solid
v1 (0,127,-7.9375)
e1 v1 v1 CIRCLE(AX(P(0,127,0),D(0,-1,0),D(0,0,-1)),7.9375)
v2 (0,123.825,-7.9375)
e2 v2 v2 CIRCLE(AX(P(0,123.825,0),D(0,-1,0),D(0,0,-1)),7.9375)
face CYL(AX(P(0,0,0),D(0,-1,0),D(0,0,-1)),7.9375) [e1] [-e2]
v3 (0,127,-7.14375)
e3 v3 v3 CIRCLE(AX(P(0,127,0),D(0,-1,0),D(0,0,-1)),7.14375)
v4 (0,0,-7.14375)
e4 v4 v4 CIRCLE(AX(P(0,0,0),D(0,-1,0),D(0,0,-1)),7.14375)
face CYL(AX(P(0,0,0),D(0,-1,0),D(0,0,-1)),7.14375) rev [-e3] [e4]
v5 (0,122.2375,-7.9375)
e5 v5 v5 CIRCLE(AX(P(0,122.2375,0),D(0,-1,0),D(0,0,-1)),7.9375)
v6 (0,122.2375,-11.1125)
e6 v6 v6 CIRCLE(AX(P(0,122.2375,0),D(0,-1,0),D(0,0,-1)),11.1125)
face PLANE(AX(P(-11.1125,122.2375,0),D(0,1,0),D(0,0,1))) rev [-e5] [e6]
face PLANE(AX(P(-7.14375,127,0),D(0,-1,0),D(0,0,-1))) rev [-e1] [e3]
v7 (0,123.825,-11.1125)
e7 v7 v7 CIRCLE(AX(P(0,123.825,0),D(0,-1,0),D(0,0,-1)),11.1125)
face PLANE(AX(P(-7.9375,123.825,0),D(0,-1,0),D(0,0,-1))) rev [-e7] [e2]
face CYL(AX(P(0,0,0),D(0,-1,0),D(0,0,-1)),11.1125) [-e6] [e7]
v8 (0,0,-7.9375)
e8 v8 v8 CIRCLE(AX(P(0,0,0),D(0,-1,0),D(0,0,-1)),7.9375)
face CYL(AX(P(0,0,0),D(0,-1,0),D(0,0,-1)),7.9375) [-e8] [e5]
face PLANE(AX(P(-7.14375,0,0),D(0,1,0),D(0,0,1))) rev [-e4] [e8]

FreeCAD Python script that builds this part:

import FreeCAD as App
import Part
import Sketcher
Q = App.Units.Quantity


def add_polygon(sketch, points):
    """Adds a closed chain of lines whose ends are joined by coincident constraints."""
    first, n = sketch.GeometryCount, len(points)
    for a, b in zip(points, points[1:] + points[:1]):
        sketch.addGeometry(Part.LineSegment(App.Vector(*a, 0), App.Vector(*b, 0)), False)
    for i in range(n):
        sketch.addConstraint(Sketcher.Constraint("Coincident", first + i, 2, first + (i + 1) % n, 1))

doc = App.newDocument("Part")
body = doc.addObject("PartDesign::Body", "Body")

sketch1 = doc.addObject("Sketcher::SketchObject", "Sketch")
body.addObject(sketch1)
sketch1.AttachmentSupport = (doc.XY_Plane, [""])
sketch1.MapMode = "FlatFace"
add_polygon(sketch1, [(-7.1, 0), (-7.1, 127), (-7.9, 127), (-7.9, 123.8), (-11.1, 123.8), (-11.1, 122.2), (-7.9, 122.2), (-7.9, 0)])
sketch1.addConstraint([
    Sketcher.Constraint("Vertical", 0),
    Sketcher.Constraint("Horizontal", 1),
    Sketcher.Constraint("Vertical", 2),
    Sketcher.Constraint("Horizontal", 3),
    Sketcher.Constraint("Vertical", 4),
    Sketcher.Constraint("Horizontal", 5),
    Sketcher.Constraint("Vertical", 6),
    Sketcher.Constraint("Horizontal", 7),
    Sketcher.Constraint("PointOnObject", 6, 2, -1),
    Sketcher.Constraint("Vertical", 2, 2, 5, 2),
    Sketcher.Constraint("Equal", 5, 2),
    Sketcher.Constraint("DistanceY", 0, 1, 0, 2, Q("5 in")),
    Sketcher.Constraint("DistanceX", 1, 2, 1, 1, Q("0.03125 in")),
    Sketcher.Constraint("DistanceX", 3, 2, 3, 1, Q("0.125 in")),
    Sketcher.Constraint("DistanceY", 4, 2, 4, 1, Q("0.0625 in")),
    Sketcher.Constraint("DistanceX", 0, 2, -1, 1, Q("0.28125 in")),
])
revolution = doc.addObject("PartDesign::Revolution", "Revolution")
body.addObject(revolution)
revolution.Profile = sketch1
revolution.ReferenceAxis = (sketch1, ["V_Axis"])
revolution.Angle = 360

doc.recompute()
